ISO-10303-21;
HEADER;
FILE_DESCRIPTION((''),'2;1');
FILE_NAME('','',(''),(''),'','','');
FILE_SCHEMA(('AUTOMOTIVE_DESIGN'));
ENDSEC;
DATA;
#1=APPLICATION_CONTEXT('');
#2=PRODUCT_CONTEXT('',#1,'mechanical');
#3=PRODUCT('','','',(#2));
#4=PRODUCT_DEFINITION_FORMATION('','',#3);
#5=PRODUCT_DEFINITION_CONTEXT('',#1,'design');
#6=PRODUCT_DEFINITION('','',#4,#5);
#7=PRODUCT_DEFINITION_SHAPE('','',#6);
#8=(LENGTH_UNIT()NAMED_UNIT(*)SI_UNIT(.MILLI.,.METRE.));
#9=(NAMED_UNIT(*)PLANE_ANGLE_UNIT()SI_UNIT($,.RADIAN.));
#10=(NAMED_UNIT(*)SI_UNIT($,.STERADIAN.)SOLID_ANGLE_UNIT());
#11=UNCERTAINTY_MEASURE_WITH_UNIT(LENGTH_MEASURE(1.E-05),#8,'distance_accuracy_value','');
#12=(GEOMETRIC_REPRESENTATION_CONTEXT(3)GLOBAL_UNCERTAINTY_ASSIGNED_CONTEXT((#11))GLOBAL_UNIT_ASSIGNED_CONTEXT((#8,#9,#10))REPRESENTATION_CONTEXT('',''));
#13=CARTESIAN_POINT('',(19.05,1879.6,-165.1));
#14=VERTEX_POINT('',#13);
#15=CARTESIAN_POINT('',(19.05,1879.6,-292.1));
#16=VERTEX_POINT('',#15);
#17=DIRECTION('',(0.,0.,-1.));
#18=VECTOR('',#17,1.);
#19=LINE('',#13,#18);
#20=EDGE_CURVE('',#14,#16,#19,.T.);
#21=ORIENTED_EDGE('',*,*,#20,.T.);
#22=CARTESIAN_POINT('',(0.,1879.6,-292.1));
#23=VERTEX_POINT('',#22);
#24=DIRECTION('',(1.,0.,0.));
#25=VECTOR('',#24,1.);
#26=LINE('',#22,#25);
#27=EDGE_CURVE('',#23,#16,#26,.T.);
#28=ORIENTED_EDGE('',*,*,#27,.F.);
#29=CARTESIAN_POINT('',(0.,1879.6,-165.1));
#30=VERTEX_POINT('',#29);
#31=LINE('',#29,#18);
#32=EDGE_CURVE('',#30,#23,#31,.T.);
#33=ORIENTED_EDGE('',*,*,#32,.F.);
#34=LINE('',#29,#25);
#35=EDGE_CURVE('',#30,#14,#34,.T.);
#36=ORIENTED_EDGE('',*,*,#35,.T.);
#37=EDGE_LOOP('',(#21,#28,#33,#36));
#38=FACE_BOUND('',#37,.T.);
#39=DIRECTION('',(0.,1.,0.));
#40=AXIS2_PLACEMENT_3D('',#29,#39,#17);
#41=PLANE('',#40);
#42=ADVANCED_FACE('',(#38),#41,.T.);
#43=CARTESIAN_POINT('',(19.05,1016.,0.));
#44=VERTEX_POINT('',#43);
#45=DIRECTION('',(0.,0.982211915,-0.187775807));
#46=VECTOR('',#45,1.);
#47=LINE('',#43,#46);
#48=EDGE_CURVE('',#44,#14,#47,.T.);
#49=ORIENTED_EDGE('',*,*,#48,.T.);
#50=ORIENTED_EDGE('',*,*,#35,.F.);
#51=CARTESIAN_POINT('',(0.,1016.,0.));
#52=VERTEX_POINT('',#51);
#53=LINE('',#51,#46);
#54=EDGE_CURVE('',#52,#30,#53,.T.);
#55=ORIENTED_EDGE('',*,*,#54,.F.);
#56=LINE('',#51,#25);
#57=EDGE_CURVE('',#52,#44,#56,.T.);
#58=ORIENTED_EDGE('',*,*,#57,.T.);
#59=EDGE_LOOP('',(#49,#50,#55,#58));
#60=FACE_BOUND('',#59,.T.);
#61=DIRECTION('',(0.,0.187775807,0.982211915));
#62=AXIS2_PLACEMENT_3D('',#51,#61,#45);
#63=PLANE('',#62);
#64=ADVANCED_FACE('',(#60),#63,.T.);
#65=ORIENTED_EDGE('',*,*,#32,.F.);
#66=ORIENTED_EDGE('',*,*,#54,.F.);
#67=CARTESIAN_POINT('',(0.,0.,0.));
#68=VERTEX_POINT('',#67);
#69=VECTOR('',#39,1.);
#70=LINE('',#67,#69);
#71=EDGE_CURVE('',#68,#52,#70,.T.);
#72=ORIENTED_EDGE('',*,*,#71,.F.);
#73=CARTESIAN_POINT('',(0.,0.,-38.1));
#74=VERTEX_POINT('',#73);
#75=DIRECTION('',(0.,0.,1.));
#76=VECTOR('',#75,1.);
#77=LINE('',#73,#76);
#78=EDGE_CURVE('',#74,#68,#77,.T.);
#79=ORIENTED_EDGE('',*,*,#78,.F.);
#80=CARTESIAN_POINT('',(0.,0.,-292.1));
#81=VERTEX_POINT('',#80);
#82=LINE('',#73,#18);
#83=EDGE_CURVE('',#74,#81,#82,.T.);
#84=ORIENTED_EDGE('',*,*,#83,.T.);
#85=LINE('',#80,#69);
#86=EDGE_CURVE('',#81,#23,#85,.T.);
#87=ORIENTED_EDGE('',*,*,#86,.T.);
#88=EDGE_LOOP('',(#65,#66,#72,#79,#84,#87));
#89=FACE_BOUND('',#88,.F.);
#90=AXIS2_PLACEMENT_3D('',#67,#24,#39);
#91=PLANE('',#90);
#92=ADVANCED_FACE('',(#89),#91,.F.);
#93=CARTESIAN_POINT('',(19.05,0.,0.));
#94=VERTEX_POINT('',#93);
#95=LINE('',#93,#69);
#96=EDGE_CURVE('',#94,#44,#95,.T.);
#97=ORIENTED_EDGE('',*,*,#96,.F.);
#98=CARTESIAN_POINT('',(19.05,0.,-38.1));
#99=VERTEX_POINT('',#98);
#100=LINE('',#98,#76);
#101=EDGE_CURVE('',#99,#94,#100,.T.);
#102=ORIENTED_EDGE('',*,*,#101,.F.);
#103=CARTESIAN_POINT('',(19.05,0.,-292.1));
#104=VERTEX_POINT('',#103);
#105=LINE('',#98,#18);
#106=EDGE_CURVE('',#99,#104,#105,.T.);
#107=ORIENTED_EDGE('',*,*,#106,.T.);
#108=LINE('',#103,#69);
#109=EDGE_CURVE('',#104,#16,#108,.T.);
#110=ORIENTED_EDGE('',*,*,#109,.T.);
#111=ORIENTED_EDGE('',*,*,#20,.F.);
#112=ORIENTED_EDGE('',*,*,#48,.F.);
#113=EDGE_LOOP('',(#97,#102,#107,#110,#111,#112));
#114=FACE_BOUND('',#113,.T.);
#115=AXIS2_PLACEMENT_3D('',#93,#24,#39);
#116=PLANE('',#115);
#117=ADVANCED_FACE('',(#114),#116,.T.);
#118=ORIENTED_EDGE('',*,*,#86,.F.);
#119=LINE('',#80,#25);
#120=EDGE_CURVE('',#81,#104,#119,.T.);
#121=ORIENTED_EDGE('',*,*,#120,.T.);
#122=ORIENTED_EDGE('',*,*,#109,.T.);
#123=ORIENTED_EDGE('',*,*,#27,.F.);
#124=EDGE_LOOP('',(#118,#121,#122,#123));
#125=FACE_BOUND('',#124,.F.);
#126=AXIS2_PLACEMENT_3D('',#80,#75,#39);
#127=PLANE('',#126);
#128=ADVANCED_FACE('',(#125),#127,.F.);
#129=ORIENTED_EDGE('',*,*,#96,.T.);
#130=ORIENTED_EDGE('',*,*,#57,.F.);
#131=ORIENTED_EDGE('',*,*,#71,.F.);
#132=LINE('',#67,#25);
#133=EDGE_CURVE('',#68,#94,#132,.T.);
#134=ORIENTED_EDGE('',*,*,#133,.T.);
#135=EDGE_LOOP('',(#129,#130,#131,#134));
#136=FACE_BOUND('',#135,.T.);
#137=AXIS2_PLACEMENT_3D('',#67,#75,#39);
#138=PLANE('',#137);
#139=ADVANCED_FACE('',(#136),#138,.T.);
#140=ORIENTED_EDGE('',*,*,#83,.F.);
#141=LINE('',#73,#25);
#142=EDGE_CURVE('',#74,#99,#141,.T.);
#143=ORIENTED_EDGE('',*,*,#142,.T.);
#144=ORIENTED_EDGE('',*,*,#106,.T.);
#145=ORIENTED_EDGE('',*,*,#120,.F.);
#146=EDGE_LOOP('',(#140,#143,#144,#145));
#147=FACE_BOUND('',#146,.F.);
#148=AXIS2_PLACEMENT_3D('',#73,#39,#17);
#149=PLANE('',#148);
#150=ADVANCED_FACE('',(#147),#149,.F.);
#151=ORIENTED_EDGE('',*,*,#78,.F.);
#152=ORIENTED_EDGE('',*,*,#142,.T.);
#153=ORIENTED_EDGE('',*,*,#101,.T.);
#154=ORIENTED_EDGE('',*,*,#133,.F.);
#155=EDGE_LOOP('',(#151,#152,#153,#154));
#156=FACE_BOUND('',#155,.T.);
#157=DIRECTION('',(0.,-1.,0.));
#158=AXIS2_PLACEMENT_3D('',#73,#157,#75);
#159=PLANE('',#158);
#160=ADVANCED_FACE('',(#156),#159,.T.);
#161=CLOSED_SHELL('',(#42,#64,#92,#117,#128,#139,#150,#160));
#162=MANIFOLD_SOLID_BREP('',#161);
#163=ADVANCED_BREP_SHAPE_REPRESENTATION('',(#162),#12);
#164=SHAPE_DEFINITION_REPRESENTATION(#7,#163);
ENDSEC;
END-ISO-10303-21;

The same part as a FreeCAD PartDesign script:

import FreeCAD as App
import Part
import Sketcher
Q = App.Units.Quantity

doc = App.newDocument("Part")
body = doc.addObject("PartDesign::Body", "Body")

# Sketch on YZ plane
sketch1 = body.newObject("Sketcher::SketchObject", "Sketch")
sketch1.AttachmentSupport = (doc.getObject("YZ_Plane"), [""])
sketch1.MapMode = "FlatFace"
sketch1.addGeometry([
    Part.LineSegment(App.Vector(0, 0, 0), App.Vector(0, -292.1, 0)),  # 0
    Part.LineSegment(App.Vector(0, -292.1, 0), App.Vector(1879.6, -292.1, 0)),  # 1
    Part.LineSegment(App.Vector(1879.6, -292.1, 0), App.Vector(1879.6, -165.1, 0)),  # 2
    Part.LineSegment(App.Vector(1879.6, -165.1, 0), App.Vector(1016, 0, 0)),  # 3
    Part.LineSegment(App.Vector(1016, 0, 0), App.Vector(0, 0, 0)),  # 4
], False)
sketch1.addConstraint([
    Sketcher.Constraint("Coincident", 0, 2, 1, 1),
    Sketcher.Constraint("Coincident", 1, 2, 2, 1),
    Sketcher.Constraint("Coincident", 2, 2, 3, 1),
    Sketcher.Constraint("Coincident", 3, 2, 4, 1),
    Sketcher.Constraint("Coincident", 4, 2, 0, 1),
    Sketcher.Constraint("Vertical", 0),
    Sketcher.Constraint("Horizontal", 1),
    Sketcher.Constraint("Vertical", 2),
    Sketcher.Constraint("Horizontal", 4),
    Sketcher.Constraint("Coincident", 4, 2, -1, 1),
    Sketcher.Constraint("DistanceX", 1, 1, 1, 2, Q("74 in")),
    Sketcher.Constraint("DistanceX", 4, 2, 4, 1, Q("40 in")),
    Sketcher.Constraint("DistanceY", 2, 1, 2, 2, Q("5 in")),
    Sketcher.Constraint("DistanceY", 0, 2, 0, 1, Q("11.5 in")),
])
pad1 = body.newObject("PartDesign::Pad", "Pad")
pad1.Profile = sketch1
pad1.Length = Q("0.75 in")

doc.recompute()
